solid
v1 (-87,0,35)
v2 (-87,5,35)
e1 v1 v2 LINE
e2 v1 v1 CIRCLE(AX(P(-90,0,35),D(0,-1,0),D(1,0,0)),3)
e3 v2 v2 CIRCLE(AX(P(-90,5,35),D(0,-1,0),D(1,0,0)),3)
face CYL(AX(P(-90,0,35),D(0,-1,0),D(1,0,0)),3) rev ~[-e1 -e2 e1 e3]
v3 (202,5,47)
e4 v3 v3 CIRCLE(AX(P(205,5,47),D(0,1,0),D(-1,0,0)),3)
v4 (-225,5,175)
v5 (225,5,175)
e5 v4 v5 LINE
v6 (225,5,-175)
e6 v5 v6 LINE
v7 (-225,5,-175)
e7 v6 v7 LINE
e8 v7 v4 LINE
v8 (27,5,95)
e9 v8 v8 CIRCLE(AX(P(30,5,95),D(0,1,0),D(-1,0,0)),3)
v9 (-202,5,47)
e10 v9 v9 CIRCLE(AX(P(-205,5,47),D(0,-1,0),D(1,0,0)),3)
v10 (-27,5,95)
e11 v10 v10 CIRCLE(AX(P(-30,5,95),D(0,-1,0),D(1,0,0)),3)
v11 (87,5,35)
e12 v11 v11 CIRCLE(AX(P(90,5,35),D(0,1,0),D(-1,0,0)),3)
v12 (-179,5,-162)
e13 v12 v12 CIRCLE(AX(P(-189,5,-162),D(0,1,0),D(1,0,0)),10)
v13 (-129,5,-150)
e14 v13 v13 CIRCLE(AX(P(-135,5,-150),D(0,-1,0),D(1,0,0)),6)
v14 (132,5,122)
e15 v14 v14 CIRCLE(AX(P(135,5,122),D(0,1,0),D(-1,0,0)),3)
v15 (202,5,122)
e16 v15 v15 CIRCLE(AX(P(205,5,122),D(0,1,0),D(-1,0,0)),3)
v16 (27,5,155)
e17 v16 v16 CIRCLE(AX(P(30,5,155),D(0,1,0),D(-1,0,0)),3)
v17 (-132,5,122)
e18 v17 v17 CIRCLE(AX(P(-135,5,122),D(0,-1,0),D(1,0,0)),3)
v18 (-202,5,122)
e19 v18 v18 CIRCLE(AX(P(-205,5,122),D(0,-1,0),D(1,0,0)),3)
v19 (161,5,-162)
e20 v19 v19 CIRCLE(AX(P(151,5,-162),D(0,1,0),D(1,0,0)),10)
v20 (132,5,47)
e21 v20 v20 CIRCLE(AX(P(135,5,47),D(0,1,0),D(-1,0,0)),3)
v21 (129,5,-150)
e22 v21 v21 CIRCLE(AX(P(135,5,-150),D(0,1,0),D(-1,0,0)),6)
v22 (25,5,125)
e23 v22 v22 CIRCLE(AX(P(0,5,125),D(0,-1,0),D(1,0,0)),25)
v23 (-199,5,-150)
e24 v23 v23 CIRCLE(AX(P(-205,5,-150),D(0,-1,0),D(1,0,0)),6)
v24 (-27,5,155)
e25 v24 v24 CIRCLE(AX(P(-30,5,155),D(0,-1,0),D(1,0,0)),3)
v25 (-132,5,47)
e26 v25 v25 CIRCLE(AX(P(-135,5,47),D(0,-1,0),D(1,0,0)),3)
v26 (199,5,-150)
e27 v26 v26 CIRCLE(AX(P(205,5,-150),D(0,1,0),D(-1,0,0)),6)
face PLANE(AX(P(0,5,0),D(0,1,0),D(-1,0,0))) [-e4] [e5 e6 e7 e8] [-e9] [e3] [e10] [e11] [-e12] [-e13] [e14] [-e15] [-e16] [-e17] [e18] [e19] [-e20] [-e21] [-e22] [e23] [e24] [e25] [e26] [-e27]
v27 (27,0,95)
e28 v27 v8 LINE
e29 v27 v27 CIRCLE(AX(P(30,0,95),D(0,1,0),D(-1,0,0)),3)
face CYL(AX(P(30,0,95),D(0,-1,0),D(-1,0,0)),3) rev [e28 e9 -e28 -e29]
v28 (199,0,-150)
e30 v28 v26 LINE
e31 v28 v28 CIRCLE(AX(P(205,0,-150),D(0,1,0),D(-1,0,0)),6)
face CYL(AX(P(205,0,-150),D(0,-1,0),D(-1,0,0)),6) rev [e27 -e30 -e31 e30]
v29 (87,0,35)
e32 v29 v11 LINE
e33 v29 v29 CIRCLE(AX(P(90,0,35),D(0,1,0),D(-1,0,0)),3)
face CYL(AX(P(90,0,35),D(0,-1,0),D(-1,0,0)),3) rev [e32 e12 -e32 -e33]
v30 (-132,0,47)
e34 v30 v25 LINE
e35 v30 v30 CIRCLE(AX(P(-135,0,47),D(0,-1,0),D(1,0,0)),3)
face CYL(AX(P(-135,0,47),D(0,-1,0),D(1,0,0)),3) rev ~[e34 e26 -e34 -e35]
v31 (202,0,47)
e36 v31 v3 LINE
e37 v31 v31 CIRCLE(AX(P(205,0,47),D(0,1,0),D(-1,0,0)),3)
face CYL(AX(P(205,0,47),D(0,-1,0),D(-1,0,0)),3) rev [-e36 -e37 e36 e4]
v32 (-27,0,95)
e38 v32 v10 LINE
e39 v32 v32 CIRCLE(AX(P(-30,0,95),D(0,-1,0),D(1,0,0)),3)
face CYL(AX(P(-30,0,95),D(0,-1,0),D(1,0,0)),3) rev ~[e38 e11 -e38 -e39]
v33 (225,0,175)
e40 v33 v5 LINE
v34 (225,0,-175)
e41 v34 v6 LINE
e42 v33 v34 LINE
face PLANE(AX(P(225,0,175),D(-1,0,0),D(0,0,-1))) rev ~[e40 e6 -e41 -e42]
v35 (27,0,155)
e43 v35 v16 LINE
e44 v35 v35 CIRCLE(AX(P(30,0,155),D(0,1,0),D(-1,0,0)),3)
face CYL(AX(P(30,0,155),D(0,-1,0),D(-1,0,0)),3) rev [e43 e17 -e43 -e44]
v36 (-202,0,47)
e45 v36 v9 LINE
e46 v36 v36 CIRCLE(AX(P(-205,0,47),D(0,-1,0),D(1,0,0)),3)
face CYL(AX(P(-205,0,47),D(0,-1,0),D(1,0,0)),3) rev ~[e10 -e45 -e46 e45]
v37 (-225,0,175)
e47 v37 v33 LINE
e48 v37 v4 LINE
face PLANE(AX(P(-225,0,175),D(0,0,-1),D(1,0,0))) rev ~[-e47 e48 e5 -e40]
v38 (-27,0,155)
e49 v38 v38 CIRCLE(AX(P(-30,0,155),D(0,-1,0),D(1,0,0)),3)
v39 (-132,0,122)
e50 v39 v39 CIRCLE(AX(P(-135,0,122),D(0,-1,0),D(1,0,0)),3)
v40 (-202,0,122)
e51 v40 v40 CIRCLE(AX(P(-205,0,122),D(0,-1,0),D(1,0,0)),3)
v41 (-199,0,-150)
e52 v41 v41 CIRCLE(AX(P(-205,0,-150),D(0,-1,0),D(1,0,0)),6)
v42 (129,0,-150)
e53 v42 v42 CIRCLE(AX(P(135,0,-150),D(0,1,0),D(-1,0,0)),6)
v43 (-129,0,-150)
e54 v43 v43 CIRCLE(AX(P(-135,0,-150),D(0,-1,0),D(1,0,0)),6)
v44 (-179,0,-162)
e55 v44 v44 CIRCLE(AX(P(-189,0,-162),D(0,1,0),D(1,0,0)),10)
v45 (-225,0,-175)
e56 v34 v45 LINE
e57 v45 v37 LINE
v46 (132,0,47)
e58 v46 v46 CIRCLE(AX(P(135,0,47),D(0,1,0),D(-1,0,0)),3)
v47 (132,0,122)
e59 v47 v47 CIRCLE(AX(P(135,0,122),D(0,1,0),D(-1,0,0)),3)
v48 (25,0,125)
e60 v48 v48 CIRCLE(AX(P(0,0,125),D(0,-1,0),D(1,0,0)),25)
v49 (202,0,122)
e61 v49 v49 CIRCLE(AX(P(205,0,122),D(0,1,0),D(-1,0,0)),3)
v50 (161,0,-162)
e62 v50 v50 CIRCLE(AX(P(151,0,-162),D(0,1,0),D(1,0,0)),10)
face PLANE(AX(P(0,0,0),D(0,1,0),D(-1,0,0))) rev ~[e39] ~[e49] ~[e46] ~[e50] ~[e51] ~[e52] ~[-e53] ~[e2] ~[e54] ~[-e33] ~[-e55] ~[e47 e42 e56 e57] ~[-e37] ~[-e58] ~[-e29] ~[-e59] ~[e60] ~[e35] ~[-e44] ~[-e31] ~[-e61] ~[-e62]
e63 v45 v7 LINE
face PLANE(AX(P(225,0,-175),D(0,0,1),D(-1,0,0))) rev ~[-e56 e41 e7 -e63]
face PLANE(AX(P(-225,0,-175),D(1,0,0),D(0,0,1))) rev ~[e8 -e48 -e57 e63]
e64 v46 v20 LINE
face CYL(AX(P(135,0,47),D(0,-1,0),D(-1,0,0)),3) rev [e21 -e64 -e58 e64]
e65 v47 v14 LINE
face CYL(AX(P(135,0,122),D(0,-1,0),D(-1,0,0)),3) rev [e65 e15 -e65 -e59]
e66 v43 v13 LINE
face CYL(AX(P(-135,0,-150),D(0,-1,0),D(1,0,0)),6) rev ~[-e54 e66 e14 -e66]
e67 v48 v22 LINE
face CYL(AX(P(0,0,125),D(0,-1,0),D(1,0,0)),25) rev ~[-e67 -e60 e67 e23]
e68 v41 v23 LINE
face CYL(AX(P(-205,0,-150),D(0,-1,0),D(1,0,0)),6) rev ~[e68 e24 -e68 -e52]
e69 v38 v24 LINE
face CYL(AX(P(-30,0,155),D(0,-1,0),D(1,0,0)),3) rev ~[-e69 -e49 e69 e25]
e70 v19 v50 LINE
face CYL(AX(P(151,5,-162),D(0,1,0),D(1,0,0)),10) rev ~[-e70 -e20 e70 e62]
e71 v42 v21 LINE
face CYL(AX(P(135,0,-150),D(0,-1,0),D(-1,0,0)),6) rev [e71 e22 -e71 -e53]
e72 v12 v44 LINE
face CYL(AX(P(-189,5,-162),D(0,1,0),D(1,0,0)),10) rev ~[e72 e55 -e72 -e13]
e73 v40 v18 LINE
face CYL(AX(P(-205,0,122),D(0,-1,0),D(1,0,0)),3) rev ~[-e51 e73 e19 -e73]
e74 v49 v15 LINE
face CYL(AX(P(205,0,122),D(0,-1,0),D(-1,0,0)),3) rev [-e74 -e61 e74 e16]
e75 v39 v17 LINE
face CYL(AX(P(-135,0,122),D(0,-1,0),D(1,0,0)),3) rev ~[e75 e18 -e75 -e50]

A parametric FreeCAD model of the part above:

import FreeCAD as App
import Part
import Sketcher
from FreeCAD import Vector
Q = App.Units.Quantity


def add_polygon(sketch, points):
    """Adds a closed chain of lines whose ends are joined by coincident constraints."""
    first, n = sketch.GeometryCount, len(points)
    for a, b in zip(points, points[1:] + points[:1]):
        sketch.addGeometry(Part.LineSegment(App.Vector(*a, 0), App.Vector(*b, 0)), False)
    for i in range(n):
        sketch.addConstraint(Sketcher.Constraint("Coincident", first + i, 2, first + (i + 1) % n, 1))

doc = App.newDocument("Part")
body = doc.addObject("PartDesign::Body", "Body")

# Sketch on XZ plane
sketch1 = body.newObject("Sketcher::SketchObject", "Sketch")
sketch1.AttachmentSupport = (doc.getObject("XZ_Plane"), [""])
sketch1.MapMode = "FlatFace"
add_polygon(sketch1, [(-225, -175), (-225, 175), (225, 175), (225, -175)])  # lines 0-3
sketch1.addConstraint([
    Sketcher.Constraint("Vertical", 0),
    Sketcher.Constraint("Horizontal", 1),
    Sketcher.Constraint("Vertical", 2),
    Sketcher.Constraint("Horizontal", 3),
    Sketcher.Constraint("Symmetric", 0, 2, 2, 2, -1, 1),
    Sketcher.Constraint("DistanceX", 1, 1, 1, 2, Q("450 mm")),
    Sketcher.Constraint("DistanceY", 0, 1, 0, 2, Q("350 mm")),
])
pad1 = body.newObject("PartDesign::Pad", "Pad")
pad1.Profile = sketch1
pad1.Length = 5
pad1.Reversed = True

# Sketch on XZ plane
sketch2 = body.newObject("Sketcher::SketchObject", "Sketch001")
sketch2.AttachmentSupport = (doc.getObject("XZ_Plane"), [""])
sketch2.MapMode = "FlatFace"
sketch2.addGeometry([
    Part.Circle(Vector(-205, -150, 0), Vector(0, 0, 1), 6),  # 0
    Part.Circle(Vector(-135, -150, 0), Vector(0, 0, 1), 6),  # 1
    Part.Circle(Vector(-205, 47, 0), Vector(0, 0, 1), 3),  # 2
    Part.Circle(Vector(-205, 122, 0), Vector(0, 0, 1), 3),  # 3
    Part.Circle(Vector(-135, 47, 0), Vector(0, 0, 1), 3),  # 4
    Part.Circle(Vector(-135, 122, 0), Vector(0, 0, 1), 3),  # 5
    Part.Circle(Vector(-90, 35, 0), Vector(0, 0, 1), 3),  # 6
    Part.Circle(Vector(-30, 155, 0), Vector(0, 0, 1), 3),  # 7
    Part.Circle(Vector(-30, 95, 0), Vector(0, 0, 1), 3),  # 8
], False)
sketch2.addConstraint([
    Sketcher.Constraint("Equal", 0, 1),
    Sketcher.Constraint("Equal", 2, 3),
    Sketcher.Constraint("Equal", 3, 4),
    Sketcher.Constraint("Equal", 4, 5),
    Sketcher.Constraint("Equal", 5, 6),
    Sketcher.Constraint("Equal", 6, 7),
    Sketcher.Constraint("Equal", 7, 8),
    Sketcher.Constraint("Horizontal", 0, 3, 1, 3),
    Sketcher.Constraint("Horizontal", 2, 3, 4, 3),
    Sketcher.Constraint("Horizontal", 3, 3, 5, 3),
    Sketcher.Constraint("Vertical", 0, 3, 2, 3),
    Sketcher.Constraint("Vertical", 2, 3, 3, 3),
    Sketcher.Constraint("Vertical", 1, 3, 4, 3),
    Sketcher.Constraint("Vertical", 4, 3, 5, 3),
    Sketcher.Constraint("Vertical", 7, 3, 8, 3),
    Sketcher.Constraint("Diameter", 0, Q("12 mm")),
    Sketcher.Constraint("Diameter", 2, Q("6 mm")),
    Sketcher.Constraint("DistanceY", 6, 3, 4, 3, Q("12 mm")),
    Sketcher.Constraint("DistanceX", 0, 3, -1, 1, Q("205 mm")),
    Sketcher.Constraint("DistanceY", 0, 3, -1, 1, Q("150 mm")),
    Sketcher.Constraint("DistanceX", 1, 3, -1, 1, Q("135 mm")),
    Sketcher.Constraint("DistanceY", -1, 1, 2, 3, Q("47 mm")),
    Sketcher.Constraint("DistanceY", -1, 1, 3, 3, Q("122 mm")),
    Sketcher.Constraint("DistanceX", 6, 3, -1, 1, Q("90 mm")),
    Sketcher.Constraint("DistanceX", 7, 3, -1, 1, Q("30 mm")),
    Sketcher.Constraint("DistanceY", -1, 1, 7, 3, Q("155 mm")),
    Sketcher.Constraint("DistanceY", -1, 1, 8, 3, Q("95 mm")),
])
pocket1 = body.newObject("PartDesign::Pocket", "Pocket")
pocket1.Profile = sketch2
pocket1.Length = 5
doc.recompute()

mirrored = body.newObject("PartDesign::Mirrored", "Mirrored")
mirrored.Originals = [pocket1]
mirrored.MirrorPlane = (doc.getObject("YZ_Plane"), [""])
body.Tip = mirrored

# Sketch on XZ plane
sketch3 = body.newObject("Sketcher::SketchObject", "Sketch002")
sketch3.AttachmentSupport = (doc.getObject("XZ_Plane"), [""])
sketch3.MapMode = "FlatFace"
sketch3.addGeometry(Part.Circle(Vector(0, 125, 0), Vector(0, 0, 1), 25), False)
sketch3.addConstraint([
    Sketcher.Constraint("PointOnObject", 0, 3, -2),
    Sketcher.Constraint("Diameter", 0, Q("50 mm")),
    Sketcher.Constraint("DistanceY", -1, 1, 0, 3, Q("125 mm")),
])
pocket2 = body.newObject("PartDesign::Pocket", "Pocket001")
pocket2.Profile = sketch3
pocket2.Length = 5

# Sketch on XZ plane
sketch4 = body.newObject("Sketcher::SketchObject", "Sketch003")
sketch4.AttachmentSupport = (doc.getObject("XZ_Plane"), [""])
sketch4.MapMode = "FlatFace"
sketch4.AttachmentOffset = App.Placement(Vector(0, 0, -5), App.Rotation())
sketch4.addGeometry([
    Part.Circle(Vector(-189, -162, 0), Vector(0, 0, 1), 10),
    Part.Circle(Vector(151, -162, 0), Vector(0, 0, 1), 10),
], False)
sketch4.addConstraint([
    Sketcher.Constraint("Equal", 0, 1),
    Sketcher.Constraint("Horizontal", 0, 3, 1, 3),
    Sketcher.Constraint("Diameter", 0, Q("20 mm")),
    Sketcher.Constraint("DistanceX", 0, 3, -1, 1, Q("189 mm")),
    Sketcher.Constraint("DistanceY", 0, 3, -1, 1, Q("162 mm")),
    Sketcher.Constraint("DistanceX", -1, 1, 1, 3, Q("151 mm")),
])
pocket3 = body.newObject("PartDesign::Pocket", "Pocket002")
pocket3.Profile = sketch4
pocket3.Length = 5
pocket3.Reversed = True

doc.recompute()
